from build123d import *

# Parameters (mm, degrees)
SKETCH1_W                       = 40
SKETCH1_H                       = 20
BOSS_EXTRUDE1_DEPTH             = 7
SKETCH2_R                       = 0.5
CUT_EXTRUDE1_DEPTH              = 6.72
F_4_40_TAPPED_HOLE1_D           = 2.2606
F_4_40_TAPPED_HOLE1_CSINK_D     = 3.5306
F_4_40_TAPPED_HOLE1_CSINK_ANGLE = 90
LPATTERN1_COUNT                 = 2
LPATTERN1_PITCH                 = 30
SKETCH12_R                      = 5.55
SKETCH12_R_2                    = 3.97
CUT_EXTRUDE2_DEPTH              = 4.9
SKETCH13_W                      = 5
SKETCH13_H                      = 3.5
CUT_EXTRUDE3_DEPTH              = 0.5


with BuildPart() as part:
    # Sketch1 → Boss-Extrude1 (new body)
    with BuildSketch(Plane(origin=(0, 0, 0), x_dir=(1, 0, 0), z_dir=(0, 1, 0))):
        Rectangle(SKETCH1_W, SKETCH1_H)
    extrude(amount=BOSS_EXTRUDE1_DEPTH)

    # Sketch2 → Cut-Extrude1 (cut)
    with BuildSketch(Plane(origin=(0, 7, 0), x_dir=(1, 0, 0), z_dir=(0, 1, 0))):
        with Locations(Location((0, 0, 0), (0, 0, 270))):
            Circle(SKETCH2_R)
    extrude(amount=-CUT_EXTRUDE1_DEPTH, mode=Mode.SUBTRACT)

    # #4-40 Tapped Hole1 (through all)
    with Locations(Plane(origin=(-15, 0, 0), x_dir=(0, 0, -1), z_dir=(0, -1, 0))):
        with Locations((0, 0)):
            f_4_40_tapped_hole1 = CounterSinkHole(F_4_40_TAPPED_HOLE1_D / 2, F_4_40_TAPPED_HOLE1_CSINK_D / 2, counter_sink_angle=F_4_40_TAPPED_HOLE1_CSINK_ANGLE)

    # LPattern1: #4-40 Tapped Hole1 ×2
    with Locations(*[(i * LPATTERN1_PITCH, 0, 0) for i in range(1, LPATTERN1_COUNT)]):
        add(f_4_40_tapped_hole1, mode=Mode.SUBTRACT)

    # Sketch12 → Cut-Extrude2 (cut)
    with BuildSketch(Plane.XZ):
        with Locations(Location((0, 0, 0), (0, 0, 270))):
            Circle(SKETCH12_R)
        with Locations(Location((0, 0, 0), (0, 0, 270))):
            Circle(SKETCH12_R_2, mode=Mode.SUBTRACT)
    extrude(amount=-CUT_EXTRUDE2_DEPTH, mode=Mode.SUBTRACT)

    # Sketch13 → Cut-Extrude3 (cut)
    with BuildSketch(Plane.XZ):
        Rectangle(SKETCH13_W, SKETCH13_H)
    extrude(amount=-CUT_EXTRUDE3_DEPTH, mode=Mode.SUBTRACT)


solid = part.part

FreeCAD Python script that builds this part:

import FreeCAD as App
import Part
import Sketcher

doc = App.newDocument("Part")
params = doc.addObject("Spreadsheet::Sheet", "Params")
for row, (alias, value) in enumerate([
    ("sketch1_width", "40 mm"),
    ("sketch1_height", "20 mm"),
    ("pad1_length", "7 mm"),
    ("sketch2_diameter", "1 mm"),
    ("pocket1_length", "6.72 mm"),
    ("hole_diameter", "2.2606 mm"),
    ("hole_csink_diameter", "3.5306 mm"),
    ("linearpattern_pitch", "30 mm"),
    ("sketch4_diameter", "11.1 mm"),
    ("sketch4_diameter2", "7.94 mm"),
    ("pocket2_length", "4.9 mm"),
    ("sketch5_width", "5 mm"),
    ("sketch5_height", "3.5 mm"),
    ("pocket3_length", "0.5 mm"),
], start=1):
    params.set(f"A{row}", alias)
    params.set(f"B{row}", "=" + value)
    params.setAlias(f"B{row}", alias)

body = doc.addObject("PartDesign::Body", "Body")

sketch1 = body.newObject("Sketcher::SketchObject", "Sketch")
sketch1.AttachmentSupport = (doc.getObject("XZ_Plane"), [""])
sketch1.MapMode = "FlatFace"
sketch1.addGeometry([
    Part.LineSegment(App.Vector(-20, -10, 0), App.Vector(-20, 10, 0)),
    Part.LineSegment(App.Vector(-20, 10, 0), App.Vector(20, 10, 0)),
    Part.LineSegment(App.Vector(20, 10, 0), App.Vector(20, -10, 0)),
    Part.LineSegment(App.Vector(20, -10, 0), App.Vector(-20, -10, 0)),
], False)
sketch1.addConstraint([
    Sketcher.Constraint("Coincident", 0, 2, 1, 1),
    Sketcher.Constraint("Coincident", 1, 2, 2, 1),
    Sketcher.Constraint("Coincident", 2, 2, 3, 1),
    Sketcher.Constraint("Coincident", 3, 2, 0, 1),
    Sketcher.Constraint("Vertical", 0),
    Sketcher.Constraint("Horizontal", 1),
    Sketcher.Constraint("Vertical", 2),
    Sketcher.Constraint("Horizontal", 3),
    Sketcher.Constraint("Symmetric", 0, 2, 2, 2, -1, 1),
    Sketcher.Constraint("DistanceX", 1, 1, 1, 2, 40.0),
    Sketcher.Constraint("DistanceY", 0, 1, 0, 2, 20.0),
])
sketch1.setExpression("Constraints[9]", "Params.sketch1_width")
sketch1.setExpression("Constraints[10]", "Params.sketch1_height")
pad1 = body.newObject("PartDesign::Pad", "Pad")
pad1.Profile = sketch1
pad1.setExpression("Length", "Params.pad1_length")
pad1.Reversed = True

sketch2 = body.newObject("Sketcher::SketchObject", "Sketch001")
sketch2.AttachmentSupport = (doc.getObject("XZ_Plane"), [""])
sketch2.MapMode = "FlatFace"
sketch2.AttachmentOffset = App.Placement(App.Vector(0, 0, -7), App.Rotation())
sketch2.addGeometry(Part.Circle(App.Vector(0, 0, 0), App.Vector(0, 0, 1), 0.5), False)
sketch2.addConstraint([
    Sketcher.Constraint("Coincident", 0, 3, -1, 1),
    Sketcher.Constraint("Diameter", 0, 1.0),
])
sketch2.setExpression("Constraints[1]", "Params.sketch2_diameter")
pocket1 = body.newObject("PartDesign::Pocket", "Pocket")
pocket1.Profile = sketch2
pocket1.setExpression("Length", "Params.pocket1_length")
pocket1.Reversed = True

sketch3 = body.newObject("Sketcher::SketchObject", "Sketch002")
sketch3.AttachmentSupport = (doc.getObject("XZ_Plane"), [""])
sketch3.MapMode = "FlatFace"
sketch3.addGeometry(Part.Circle(App.Vector(-15, 0, 0), App.Vector(0, 0, 1), 1.1), False)
sketch3.addConstraint([
    Sketcher.Constraint("PointOnObject", 0, 3, -1),
    Sketcher.Constraint("DistanceX", 0, 3, -1, 1, 15.0),
    Sketcher.Constraint("Diameter", 0, 2.2606),
])
doc.recompute()
hole = body.newObject("PartDesign::Hole", "Hole")
hole.Profile = sketch3
hole.ThreadType = "None"
hole.setExpression("Diameter", "Params.hole_diameter")
hole.DepthType = "ThroughAll"
hole.HoleCutType = "Countersink"
hole.setExpression("HoleCutDiameter", "Params.hole_csink_diameter")
hole.HoleCutCountersinkAngle = 90
doc.recompute()

linearpattern = body.newObject("PartDesign::LinearPattern", "LinearPattern")
linearpattern.Originals = [hole]
linearpattern.Direction = (doc.getObject("X_Axis"), [""])
linearpattern.Mode = "offset"
linearpattern.setExpression("Offset", "Params.linearpattern_pitch")
linearpattern.Occurrences = 2
body.Tip = linearpattern

sketch4 = body.newObject("Sketcher::SketchObject", "Sketch003")
sketch4.AttachmentSupport = (doc.getObject("XZ_Plane"), [""])
sketch4.MapMode = "FlatFace"
sketch4.addGeometry([
    Part.Circle(App.Vector(0, 0, 0), App.Vector(0, 0, 1), 5.5),
    Part.Circle(App.Vector(0, 0, 0), App.Vector(0, 0, 1), 4),
], False)
sketch4.addConstraint([
    Sketcher.Constraint("Coincident", 0, 3, -1, 1),
    Sketcher.Constraint("Coincident", 1, 3, -1, 1),
    Sketcher.Constraint("Diameter", 0, 11.1),
    Sketcher.Constraint("Diameter", 1, 7.94),
])
sketch4.setExpression("Constraints[2]", "Params.sketch4_diameter")
sketch4.setExpression("Constraints[3]", "Params.sketch4_diameter2")
pocket2 = body.newObject("PartDesign::Pocket", "Pocket001")
pocket2.Profile = sketch4
pocket2.setExpression("Length", "Params.pocket2_length")

sketch5 = body.newObject("Sketcher::SketchObject", "Sketch004")
sketch5.AttachmentSupport = (doc.getObject("XZ_Plane"), [""])
sketch5.MapMode = "FlatFace"
sketch5.addGeometry([
    Part.LineSegment(App.Vector(-2.5, 1.8, 0), App.Vector(-2.5, -1.8, 0)),
    Part.LineSegment(App.Vector(-2.5, -1.8, 0), App.Vector(2.5, -1.8, 0)),
    Part.LineSegment(App.Vector(2.5, -1.8, 0), App.Vector(2.5, 1.8, 0)),
    Part.LineSegment(App.Vector(2.5, 1.8, 0), App.Vector(-2.5, 1.8, 0)),
], False)
sketch5.addConstraint([
    Sketcher.Constraint("Coincident", 0, 2, 1, 1),
    Sketcher.Constraint("Coincident", 1, 2, 2, 1),
    Sketcher.Constraint("Coincident", 2, 2, 3, 1),
    Sketcher.Constraint("Coincident", 3, 2, 0, 1),
    Sketcher.Constraint("Vertical", 0),
    Sketcher.Constraint("Horizontal", 1),
    Sketcher.Constraint("Vertical", 2),
    Sketcher.Constraint("Horizontal", 3),
    Sketcher.Constraint("Symmetric", 0, 2, 2, 2, -1, 1),
    Sketcher.Constraint("DistanceX", 1, 1, 1, 2, 5.0),
    Sketcher.Constraint("DistanceY", 0, 2, 0, 1, 3.5),
])
sketch5.setExpression("Constraints[9]", "Params.sketch5_width")
sketch5.setExpression("Constraints[10]", "Params.sketch5_height")
pocket3 = body.newObject("PartDesign::Pocket", "Pocket002")
pocket3.Profile = sketch5
pocket3.setExpression("Length", "Params.pocket3_length")

doc.recompute()
